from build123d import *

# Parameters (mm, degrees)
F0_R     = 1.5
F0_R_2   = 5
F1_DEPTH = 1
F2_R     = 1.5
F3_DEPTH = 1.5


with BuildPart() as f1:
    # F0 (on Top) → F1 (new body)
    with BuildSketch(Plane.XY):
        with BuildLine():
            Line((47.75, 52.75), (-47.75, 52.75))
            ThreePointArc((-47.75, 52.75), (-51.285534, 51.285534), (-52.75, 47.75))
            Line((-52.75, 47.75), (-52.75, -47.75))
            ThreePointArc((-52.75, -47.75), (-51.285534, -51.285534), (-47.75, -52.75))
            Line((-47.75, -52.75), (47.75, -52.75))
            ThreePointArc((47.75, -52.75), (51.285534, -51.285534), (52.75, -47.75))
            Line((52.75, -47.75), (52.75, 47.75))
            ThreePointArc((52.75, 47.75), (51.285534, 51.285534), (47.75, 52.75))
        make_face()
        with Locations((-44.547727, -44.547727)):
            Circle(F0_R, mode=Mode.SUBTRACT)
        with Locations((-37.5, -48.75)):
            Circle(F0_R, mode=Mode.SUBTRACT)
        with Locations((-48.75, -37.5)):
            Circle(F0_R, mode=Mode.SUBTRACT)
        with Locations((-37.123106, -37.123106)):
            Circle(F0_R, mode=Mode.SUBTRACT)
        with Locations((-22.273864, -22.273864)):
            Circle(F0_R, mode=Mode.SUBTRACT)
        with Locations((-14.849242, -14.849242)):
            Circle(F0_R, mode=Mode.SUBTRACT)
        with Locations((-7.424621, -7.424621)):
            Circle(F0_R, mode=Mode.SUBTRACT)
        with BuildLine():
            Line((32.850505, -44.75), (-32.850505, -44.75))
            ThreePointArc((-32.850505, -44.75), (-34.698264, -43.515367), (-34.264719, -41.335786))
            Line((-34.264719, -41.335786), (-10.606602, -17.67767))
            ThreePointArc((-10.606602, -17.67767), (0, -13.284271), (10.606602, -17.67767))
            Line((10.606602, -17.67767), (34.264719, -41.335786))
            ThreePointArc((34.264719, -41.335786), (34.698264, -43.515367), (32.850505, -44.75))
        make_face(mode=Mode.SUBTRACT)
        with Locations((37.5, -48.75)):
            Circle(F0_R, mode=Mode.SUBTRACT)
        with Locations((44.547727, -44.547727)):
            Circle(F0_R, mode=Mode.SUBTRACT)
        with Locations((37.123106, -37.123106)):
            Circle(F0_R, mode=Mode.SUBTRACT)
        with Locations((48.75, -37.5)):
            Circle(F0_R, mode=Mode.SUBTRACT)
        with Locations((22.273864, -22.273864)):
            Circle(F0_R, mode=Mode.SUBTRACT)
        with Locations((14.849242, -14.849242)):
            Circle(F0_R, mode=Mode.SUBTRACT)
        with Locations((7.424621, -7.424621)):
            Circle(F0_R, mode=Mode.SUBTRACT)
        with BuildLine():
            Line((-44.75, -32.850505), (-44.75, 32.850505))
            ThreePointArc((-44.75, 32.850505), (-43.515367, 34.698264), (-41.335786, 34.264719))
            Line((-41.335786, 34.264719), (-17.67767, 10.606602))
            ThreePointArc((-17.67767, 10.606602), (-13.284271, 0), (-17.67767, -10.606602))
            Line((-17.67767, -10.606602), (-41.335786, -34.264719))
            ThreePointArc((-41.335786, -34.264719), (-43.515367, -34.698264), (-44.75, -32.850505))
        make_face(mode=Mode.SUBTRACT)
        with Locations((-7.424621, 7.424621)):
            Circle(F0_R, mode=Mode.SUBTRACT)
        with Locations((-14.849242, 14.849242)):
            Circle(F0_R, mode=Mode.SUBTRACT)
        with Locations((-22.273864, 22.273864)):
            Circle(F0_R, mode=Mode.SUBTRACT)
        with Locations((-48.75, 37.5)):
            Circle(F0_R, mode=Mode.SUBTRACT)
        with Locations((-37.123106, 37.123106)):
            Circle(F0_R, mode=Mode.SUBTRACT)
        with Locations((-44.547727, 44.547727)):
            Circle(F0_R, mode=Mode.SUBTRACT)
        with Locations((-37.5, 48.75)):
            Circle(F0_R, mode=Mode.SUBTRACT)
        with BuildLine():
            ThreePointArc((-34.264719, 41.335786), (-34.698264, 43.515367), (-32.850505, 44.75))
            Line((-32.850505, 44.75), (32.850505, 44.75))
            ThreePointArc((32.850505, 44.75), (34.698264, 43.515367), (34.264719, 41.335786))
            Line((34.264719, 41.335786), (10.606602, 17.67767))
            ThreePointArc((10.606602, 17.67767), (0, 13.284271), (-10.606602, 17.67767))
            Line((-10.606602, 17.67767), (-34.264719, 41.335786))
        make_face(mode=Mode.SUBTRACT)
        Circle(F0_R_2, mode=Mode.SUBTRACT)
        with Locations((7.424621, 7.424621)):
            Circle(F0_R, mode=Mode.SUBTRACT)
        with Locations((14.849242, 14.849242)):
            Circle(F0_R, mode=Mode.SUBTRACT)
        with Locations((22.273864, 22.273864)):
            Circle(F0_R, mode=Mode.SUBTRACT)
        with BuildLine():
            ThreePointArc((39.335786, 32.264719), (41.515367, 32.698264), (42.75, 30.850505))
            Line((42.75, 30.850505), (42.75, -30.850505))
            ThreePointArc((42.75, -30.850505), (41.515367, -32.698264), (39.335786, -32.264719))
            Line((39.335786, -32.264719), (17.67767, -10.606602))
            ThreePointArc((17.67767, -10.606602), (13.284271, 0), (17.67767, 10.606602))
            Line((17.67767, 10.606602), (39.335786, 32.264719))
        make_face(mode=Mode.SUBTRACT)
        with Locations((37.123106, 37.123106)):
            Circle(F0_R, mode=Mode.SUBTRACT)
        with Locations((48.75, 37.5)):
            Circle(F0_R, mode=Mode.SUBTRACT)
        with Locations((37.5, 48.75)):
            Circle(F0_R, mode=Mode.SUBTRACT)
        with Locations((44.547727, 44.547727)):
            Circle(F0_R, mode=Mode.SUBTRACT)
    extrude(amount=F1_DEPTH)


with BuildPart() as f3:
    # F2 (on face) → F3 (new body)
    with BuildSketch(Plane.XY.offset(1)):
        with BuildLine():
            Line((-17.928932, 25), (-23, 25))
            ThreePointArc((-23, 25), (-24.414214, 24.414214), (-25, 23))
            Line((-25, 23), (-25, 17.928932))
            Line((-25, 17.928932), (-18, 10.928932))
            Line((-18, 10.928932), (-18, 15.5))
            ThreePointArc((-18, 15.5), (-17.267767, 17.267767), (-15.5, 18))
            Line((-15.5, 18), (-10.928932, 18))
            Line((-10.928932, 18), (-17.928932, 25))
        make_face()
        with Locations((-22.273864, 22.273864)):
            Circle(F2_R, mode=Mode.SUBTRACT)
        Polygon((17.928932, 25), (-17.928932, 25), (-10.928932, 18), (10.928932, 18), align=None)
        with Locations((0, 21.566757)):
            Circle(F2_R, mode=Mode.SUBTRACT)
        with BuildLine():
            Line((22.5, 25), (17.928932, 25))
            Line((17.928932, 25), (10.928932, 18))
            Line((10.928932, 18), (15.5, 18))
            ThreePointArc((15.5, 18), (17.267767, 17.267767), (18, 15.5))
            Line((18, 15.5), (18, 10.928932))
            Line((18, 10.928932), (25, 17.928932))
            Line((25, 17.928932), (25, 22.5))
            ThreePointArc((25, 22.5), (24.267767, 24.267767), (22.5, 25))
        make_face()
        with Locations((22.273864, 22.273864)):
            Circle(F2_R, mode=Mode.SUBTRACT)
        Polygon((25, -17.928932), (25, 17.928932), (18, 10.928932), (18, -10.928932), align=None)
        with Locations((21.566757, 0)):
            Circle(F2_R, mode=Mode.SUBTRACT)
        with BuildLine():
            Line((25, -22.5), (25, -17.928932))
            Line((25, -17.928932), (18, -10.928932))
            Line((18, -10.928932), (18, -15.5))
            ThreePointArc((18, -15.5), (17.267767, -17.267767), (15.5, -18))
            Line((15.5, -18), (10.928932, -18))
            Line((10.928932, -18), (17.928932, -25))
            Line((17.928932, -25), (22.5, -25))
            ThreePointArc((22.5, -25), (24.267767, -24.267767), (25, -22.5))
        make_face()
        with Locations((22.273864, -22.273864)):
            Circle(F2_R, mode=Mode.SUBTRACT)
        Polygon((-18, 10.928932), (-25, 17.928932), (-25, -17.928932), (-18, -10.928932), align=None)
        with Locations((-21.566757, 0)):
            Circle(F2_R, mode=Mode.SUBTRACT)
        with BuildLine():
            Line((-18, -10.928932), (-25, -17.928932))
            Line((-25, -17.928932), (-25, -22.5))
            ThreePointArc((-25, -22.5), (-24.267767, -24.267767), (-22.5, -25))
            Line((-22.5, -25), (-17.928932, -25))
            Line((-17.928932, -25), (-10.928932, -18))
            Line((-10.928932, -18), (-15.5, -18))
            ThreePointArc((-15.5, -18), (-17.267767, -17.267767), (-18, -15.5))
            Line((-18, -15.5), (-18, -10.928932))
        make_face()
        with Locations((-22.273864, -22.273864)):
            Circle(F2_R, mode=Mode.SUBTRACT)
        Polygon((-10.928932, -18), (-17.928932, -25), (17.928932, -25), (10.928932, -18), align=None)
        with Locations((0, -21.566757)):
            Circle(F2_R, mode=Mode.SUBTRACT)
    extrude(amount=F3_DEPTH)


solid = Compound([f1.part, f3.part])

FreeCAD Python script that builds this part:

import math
import FreeCAD as App
import Part
import Sketcher

V = App.Vector

doc = App.newDocument("Part")
body = doc.addObject("PartDesign::Body", "Body")

sketch1 = body.newObject("Sketcher::SketchObject", "Sketch")
sketch1.AttachmentSupport = (doc.getObject("XY_Plane"), [""])
sketch1.MapMode = "FlatFace"
sketch1.addGeometry(Part.LineSegment(V(47.8, 52.8, 0), V(-47.8, 52.8, 0)), False)
sketch1.addGeometry(Part.ArcOfCircle(Part.Circle(V(-47.8, 47.8, 0), V(0, 0, 1), 5), math.radians(90), math.radians(180)), False)
sketch1.addGeometry(Part.LineSegment(V(-52.8, 47.8, 0), V(-52.8, -47.8, 0)), False)
sketch1.addGeometry(Part.ArcOfCircle(Part.Circle(V(-47.8, -47.8, 0), V(0, 0, 1), 5), math.radians(180), math.radians(270)), False)
sketch1.addGeometry(Part.LineSegment(V(-47.8, -52.8, 0), V(47.8, -52.8, 0)), False)
sketch1.addGeometry(Part.ArcOfCircle(Part.Circle(V(47.8, -47.8, 0), V(0, 0, 1), 5), math.radians(-90), math.radians(0)), False)
sketch1.addGeometry(Part.LineSegment(V(52.8, -47.8, 0), V(52.8, 47.8, 0)), False)
sketch1.addGeometry(Part.ArcOfCircle(Part.Circle(V(47.8, 47.8, 0), V(0, 0, 1), 5), math.radians(0), math.radians(90)), False)
sketch1.addGeometry(Part.Circle(V(-44.5, -44.5, 0), V(0, 0, 1), 1.5), False)
sketch1.addGeometry(Part.Circle(V(-37.5, -48.8, 0), V(0, 0, 1), 1.5), False)
sketch1.addGeometry(Part.Circle(V(-48.8, -37.5, 0), V(0, 0, 1), 1.5), False)
sketch1.addGeometry(Part.Circle(V(-37.1, -37.1, 0), V(0, 0, 1), 1.5), False)
sketch1.addGeometry(Part.Circle(V(-22.3, -22.3, 0), V(0, 0, 1), 1.5), False)
sketch1.addGeometry(Part.Circle(V(-14.8, -14.8, 0), V(0, 0, 1), 1.5), False)
sketch1.addGeometry(Part.Circle(V(-7.4, -7.4, 0), V(0, 0, 1), 1.5), False)
sketch1.addGeometry(Part.ArcOfCircle(Part.Circle(V(32.9, -42.7, 0), V(0, 0, 1), 2), math.radians(-90), math.radians(45)), False)
sketch1.addGeometry(Part.LineSegment(V(32.9, -44.8, 0), V(-32.9, -44.8, 0)), False)
sketch1.addGeometry(Part.ArcOfCircle(Part.Circle(V(-32.9, -42.7, 0), V(0, 0, 1), 2), math.radians(135), math.radians(270)), False)
sketch1.addGeometry(Part.LineSegment(V(-34.3, -41.3, 0), V(-10.6, -17.7, 0)), False)
sketch1.addGeometry(Part.ArcOfCircle(Part.Circle(V(0, -28.3, 0), V(0, 0, 1), 15), math.radians(45), math.radians(135)), False)
sketch1.addGeometry(Part.LineSegment(V(10.6, -17.7, 0), V(34.3, -41.3, 0)), False)
sketch1.addGeometry(Part.Circle(V(37.5, -48.8, 0), V(0, 0, 1), 1.5), False)
sketch1.addGeometry(Part.Circle(V(44.5, -44.5, 0), V(0, 0, 1), 1.5), False)
sketch1.addGeometry(Part.Circle(V(37.1, -37.1, 0), V(0, 0, 1), 1.5), False)
sketch1.addGeometry(Part.Circle(V(48.8, -37.5, 0), V(0, 0, 1), 1.5), False)
sketch1.addGeometry(Part.Circle(V(22.3, -22.3, 0), V(0, 0, 1), 1.5), False)
sketch1.addGeometry(Part.Circle(V(14.8, -14.8, 0), V(0, 0, 1), 1.5), False)
sketch1.addGeometry(Part.Circle(V(7.4, -7.4, 0), V(0, 0, 1), 1.5), False)
sketch1.addGeometry(Part.ArcOfCircle(Part.Circle(V(-42.7, -32.9, 0), V(0, 0, 1), 2), math.radians(-180), math.radians(-45)), False)
sketch1.addGeometry(Part.LineSegment(V(-44.8, -32.9, 0), V(-44.8, 32.9, 0)), False)
sketch1.addGeometry(Part.ArcOfCircle(Part.Circle(V(-42.7, 32.9, 0), V(0, 0, 1), 2), math.radians(45), math.radians(180)), False)
sketch1.addGeometry(Part.LineSegment(V(-41.3, 34.3, 0), V(-17.7, 10.6, 0)), False)
sketch1.addGeometry(Part.ArcOfCircle(Part.Circle(V(-28.3, 0, 0), V(0, 0, 1), 15), math.radians(-45), math.radians(45)), False)
sketch1.addGeometry(Part.LineSegment(V(-17.7, -10.6, 0), V(-41.3, -34.3, 0)), False)
sketch1.addGeometry(Part.Circle(V(-7.4, 7.4, 0), V(0, 0, 1), 1.5), False)
sketch1.addGeometry(Part.Circle(V(-14.8, 14.8, 0), V(0, 0, 1), 1.5), False)
sketch1.addGeometry(Part.Circle(V(-22.3, 22.3, 0), V(0, 0, 1), 1.5), False)
sketch1.addGeometry(Part.Circle(V(-48.8, 37.5, 0), V(0, 0, 1), 1.5), False)
sketch1.addGeometry(Part.Circle(V(-37.1, 37.1, 0), V(0, 0, 1), 1.5), False)
sketch1.addGeometry(Part.Circle(V(-44.5, 44.5, 0), V(0, 0, 1), 1.5), False)
sketch1.addGeometry(Part.Circle(V(-37.5, 48.8, 0), V(0, 0, 1), 1.5), False)
sketch1.addGeometry(Part.Circle(V(0, 0, 0), V(0, 0, 1), 5), False)
sketch1.addGeometry(Part.Circle(V(7.4, 7.4, 0), V(0, 0, 1), 1.5), False)
sketch1.addGeometry(Part.Circle(V(14.8, 14.8, 0), V(0, 0, 1), 1.5), False)
sketch1.addGeometry(Part.Circle(V(22.3, 22.3, 0), V(0, 0, 1), 1.5), False)
sketch1.addGeometry(Part.LineSegment(V(17.7, 10.6, 0), V(39.3, 32.3, 0)), False)
sketch1.addGeometry(Part.ArcOfCircle(Part.Circle(V(40.7, 30.9, 0), V(0, 0, 1), 2), math.radians(0), math.radians(135)), False)
sketch1.addGeometry(Part.LineSegment(V(42.8, 30.9, 0), V(42.8, -30.9, 0)), False)
sketch1.addGeometry(Part.ArcOfCircle(Part.Circle(V(40.7, -30.9, 0), V(0, 0, 1), 2), math.radians(-135), math.radians(0)), False)
sketch1.addGeometry(Part.LineSegment(V(39.3, -32.3, 0), V(17.7, -10.6, 0)), False)
sketch1.addGeometry(Part.ArcOfCircle(Part.Circle(V(28.3, 0, 0), V(0, 0, 1), 15), math.radians(135), math.radians(225)), False)
sketch1.addGeometry(Part.LineSegment(V(-10.6, 17.7, 0), V(-34.3, 41.3, 0)), False)
sketch1.addGeometry(Part.ArcOfCircle(Part.Circle(V(-32.9, 42.7, 0), V(0, 0, 1), 2), math.radians(90), math.radians(225)), False)
sketch1.addGeometry(Part.LineSegment(V(-32.9, 44.8, 0), V(32.9, 44.8, 0)), False)
sketch1.addGeometry(Part.ArcOfCircle(Part.Circle(V(32.9, 42.7, 0), V(0, 0, 1), 2), math.radians(-45), math.radians(90)), False)
sketch1.addGeometry(Part.LineSegment(V(34.3, 41.3, 0), V(10.6, 17.7, 0)), False)
sketch1.addGeometry(Part.ArcOfCircle(Part.Circle(V(0, 28.3, 0), V(0, 0, 1), 15), math.radians(-135), math.radians(-45)), False)
sketch1.addGeometry(Part.Circle(V(37.1, 37.1, 0), V(0, 0, 1), 1.5), False)
sketch1.addGeometry(Part.Circle(V(48.8, 37.5, 0), V(0, 0, 1), 1.5), False)
sketch1.addGeometry(Part.Circle(V(37.5, 48.8, 0), V(0, 0, 1), 1.5), False)
sketch1.addGeometry(Part.Circle(V(44.5, 44.5, 0), V(0, 0, 1), 1.5), False)
sketch1.addConstraint(Sketcher.Constraint("Tangent", 0, 2, 1, 1))
sketch1.addConstraint(Sketcher.Constraint("Tangent", 1, 2, 2, 1))
sketch1.addConstraint(Sketcher.Constraint("Tangent", 2, 2, 3, 1))
sketch1.addConstraint(Sketcher.Constraint("Tangent", 3, 2, 4, 1))
sketch1.addConstraint(Sketcher.Constraint("Tangent", 4, 2, 5, 1))
sketch1.addConstraint(Sketcher.Constraint("Tangent", 5, 2, 6, 1))
sketch1.addConstraint(Sketcher.Constraint("Tangent", 6, 2, 7, 1))
sketch1.addConstraint(Sketcher.Constraint("Tangent", 7, 2, 0, 1))
sketch1.addConstraint(Sketcher.Constraint("Tangent", 15, 1, 16, 1))
sketch1.addConstraint(Sketcher.Constraint("Tangent", 16, 2, 17, 2))
sketch1.addConstraint(Sketcher.Constraint("Tangent", 17, 1, 18, 1))
sketch1.addConstraint(Sketcher.Constraint("Tangent", 18, 2, 19, 2))
sketch1.addConstraint(Sketcher.Constraint("Tangent", 19, 1, 20, 1))
sketch1.addConstraint(Sketcher.Constraint("Tangent", 20, 2, 15, 2))
sketch1.addConstraint(Sketcher.Constraint("Tangent", 28, 1, 29, 1))
sketch1.addConstraint(Sketcher.Constraint("Tangent", 29, 2, 30, 2))
sketch1.addConstraint(Sketcher.Constraint("Tangent", 30, 1, 31, 1))
sketch1.addConstraint(Sketcher.Constraint("Tangent", 31, 2, 32, 2))
sketch1.addConstraint(Sketcher.Constraint("Tangent", 32, 1, 33, 1))
sketch1.addConstraint(Sketcher.Constraint("Tangent", 33, 2, 28, 2))
sketch1.addConstraint(Sketcher.Constraint("Tangent", 45, 2, 46, 2))
sketch1.addConstraint(Sketcher.Constraint("Tangent", 46, 1, 47, 1))
sketch1.addConstraint(Sketcher.Constraint("Tangent", 47, 2, 48, 2))
sketch1.addConstraint(Sketcher.Constraint("Tangent", 48, 1, 49, 1))
sketch1.addConstraint(Sketcher.Constraint("Tangent", 49, 2, 50, 2))
sketch1.addConstraint(Sketcher.Constraint("Tangent", 50, 1, 45, 1))
sketch1.addConstraint(Sketcher.Constraint("Tangent", 51, 2, 52, 2))
sketch1.addConstraint(Sketcher.Constraint("Tangent", 52, 1, 53, 1))
sketch1.addConstraint(Sketcher.Constraint("Tangent", 53, 2, 54, 2))
sketch1.addConstraint(Sketcher.Constraint("Tangent", 54, 1, 55, 1))
sketch1.addConstraint(Sketcher.Constraint("Tangent", 55, 2, 56, 2))
sketch1.addConstraint(Sketcher.Constraint("Tangent", 56, 1, 51, 1))
sketch1.addConstraint(Sketcher.Constraint("Horizontal", 0))
sketch1.addConstraint(Sketcher.Constraint("Vertical", 2))
sketch1.addConstraint(Sketcher.Constraint("Horizontal", 4))
sketch1.addConstraint(Sketcher.Constraint("Vertical", 6))
sketch1.addConstraint(Sketcher.Constraint("Horizontal", 16))
sketch1.addConstraint(Sketcher.Constraint("Vertical", 29))
sketch1.addConstraint(Sketcher.Constraint("Vertical", 47))
sketch1.addConstraint(Sketcher.Constraint("Horizontal", 53))
sketch1.addConstraint(Sketcher.Constraint("Coincident", 41, 3, -1, 1))
sketch1.addConstraint(Sketcher.Constraint("Equal", 1, 3))
sketch1.addConstraint(Sketcher.Constraint("Equal", 3, 5))
sketch1.addConstraint(Sketcher.Constraint("Equal", 5, 7))
sketch1.addConstraint(Sketcher.Constraint("Equal", 8, 9))
sketch1.addConstraint(Sketcher.Constraint("Equal", 9, 10))
sketch1.addConstraint(Sketcher.Constraint("Equal", 10, 11))
sketch1.addConstraint(Sketcher.Constraint("Equal", 11, 12))
sketch1.addConstraint(Sketcher.Constraint("Equal", 12, 13))
sketch1.addConstraint(Sketcher.Constraint("Equal", 13, 14))
sketch1.addConstraint(Sketcher.Constraint("Equal", 15, 17))
sketch1.addConstraint(Sketcher.Constraint("Equal", 14, 21))
sketch1.addConstraint(Sketcher.Constraint("Equal", 21, 22))
sketch1.addConstraint(Sketcher.Constraint("Equal", 22, 23))
sketch1.addConstraint(Sketcher.Constraint("Equal", 23, 24))
sketch1.addConstraint(Sketcher.Constraint("Equal", 24, 25))
sketch1.addConstraint(Sketcher.Constraint("Equal", 25, 26))
sketch1.addConstraint(Sketcher.Constraint("Equal", 26, 27))
sketch1.addConstraint(Sketcher.Constraint("Equal", 17, 28))
sketch1.addConstraint(Sketcher.Constraint("Equal", 28, 30))
sketch1.addConstraint(Sketcher.Constraint("Equal", 19, 32))
sketch1.addConstraint(Sketcher.Constraint("Equal", 27, 34))
sketch1.addConstraint(Sketcher.Constraint("Equal", 34, 35))
sketch1.addConstraint(Sketcher.Constraint("Equal", 35, 36))
sketch1.addConstraint(Sketcher.Constraint("Equal", 36, 37))
sketch1.addConstraint(Sketcher.Constraint("Equal", 37, 38))
sketch1.addConstraint(Sketcher.Constraint("Equal", 38, 39))
sketch1.addConstraint(Sketcher.Constraint("Equal", 39, 40))
sketch1.addConstraint(Sketcher.Constraint("Equal", 7, 41))
sketch1.addConstraint(Sketcher.Constraint("Equal", 40, 42))
sketch1.addConstraint(Sketcher.Constraint("Equal", 42, 43))
sketch1.addConstraint(Sketcher.Constraint("Equal", 43, 44))
sketch1.addConstraint(Sketcher.Constraint("Equal", 30, 46))
sketch1.addConstraint(Sketcher.Constraint("Equal", 46, 48))
sketch1.addConstraint(Sketcher.Constraint("Equal", 32, 50))
sketch1.addConstraint(Sketcher.Constraint("Equal", 48, 52))
sketch1.addConstraint(Sketcher.Constraint("Equal", 52, 54))
sketch1.addConstraint(Sketcher.Constraint("Equal", 50, 56))
sketch1.addConstraint(Sketcher.Constraint("Equal", 44, 57))
sketch1.addConstraint(Sketcher.Constraint("Equal", 57, 58))
sketch1.addConstraint(Sketcher.Constraint("Equal", 58, 59))
sketch1.addConstraint(Sketcher.Constraint("Equal", 59, 60))
sketch1.addConstraint(Sketcher.Constraint("Symmetric", 1, 3, 5, 3, -1, 1))
sketch1.addConstraint(Sketcher.Constraint("Symmetric", 27, 3, 34, 3, -1, 1))
sketch1.addConstraint(Sketcher.Constraint("Symmetric", 26, 3, 35, 3, -1, 1))
sketch1.addConstraint(Sketcher.Constraint("Symmetric", 25, 3, 36, 3, -1, 1))
sketch1.addConstraint(Sketcher.Constraint("Symmetric", 24, 3, 37, 3, -1, 1))
sketch1.addConstraint(Sketcher.Constraint("Symmetric", 23, 3, 38, 3, -1, 1))
sketch1.addConstraint(Sketcher.Constraint("Symmetric", 22, 3, 39, 3, -1, 1))
sketch1.addConstraint(Sketcher.Constraint("Symmetric", 21, 3, 40, 3, -1, 1))
sketch1.addConstraint(Sketcher.Constraint("Symmetric", 14, 3, 42, 3, -1, 1))
sketch1.addConstraint(Sketcher.Constraint("Symmetric", 13, 3, 43, 3, -1, 1))
sketch1.addConstraint(Sketcher.Constraint("Symmetric", 12, 3, 44, 3, -1, 1))
sketch1.addConstraint(Sketcher.Constraint("Symmetric", 32, 3, 50, 3, -1, 1))
sketch1.addConstraint(Sketcher.Constraint("Symmetric", 15, 3, 52, 3, -1, 1))
sketch1.addConstraint(Sketcher.Constraint("Symmetric", 19, 3, 56, 3, -1, 1))
sketch1.addConstraint(Sketcher.Constraint("Symmetric", 11, 3, 57, 3, -1, 1))
sketch1.addConstraint(Sketcher.Constraint("Symmetric", 10, 3, 58, 3, -1, 1))
sketch1.addConstraint(Sketcher.Constraint("Symmetric", 9, 3, 59, 3, -1, 1))
sketch1.addConstraint(Sketcher.Constraint("Symmetric", 8, 3, 60, 3, -1, 1))
sketch1.addConstraint(Sketcher.Constraint("Symmetric", 9, 3, 21, 3, -2))
sketch1.addConstraint(Sketcher.Constraint("Symmetric", 8, 3, 22, 3, -2))
sketch1.addConstraint(Sketcher.Constraint("Symmetric", 11, 3, 23, 3, -2))
sketch1.addConstraint(Sketcher.Constraint("Symmetric", 10, 3, 24, 3, -2))
sketch1.addConstraint(Sketcher.Constraint("Symmetric", 12, 3, 25, 3, -2))
sketch1.addConstraint(Sketcher.Constraint("Symmetric", 13, 3, 26, 3, -2))
sketch1.addConstraint(Sketcher.Constraint("Symmetric", 14, 3, 27, 3, -2))
sketch1.addConstraint(Sketcher.Constraint("Symmetric", 18, 2, 19, 1, -2))
sketch1.addConstraint(Sketcher.Constraint("Symmetric", 32, 1, 49, 2, -2))
sketch1.addConstraint(Sketcher.Constraint("Perpendicular", 18, 20))
sketch1.addConstraint(Sketcher.Constraint("Parallel", 20, 31))
sketch1.addConstraint(Sketcher.Constraint("Perpendicular", 31, 33))
sketch1.addConstraint(Sketcher.Constraint("Parallel", 33, 45))
sketch1.addConstraint(Sketcher.Constraint("Perpendicular", 51, 55))
sketch1.addConstraint(Sketcher.Constraint("Equal", 4, 2))
sketch1.addConstraint(Sketcher.Constraint("Equal", 53, 29))
sketch1.addConstraint(Sketcher.Constraint("Diameter", 8, 3.0))
sketch1.addConstraint(Sketcher.Constraint("Diameter", 41, 10.0))
sketch1.addConstraint(Sketcher.Constraint("Radius", 15, 2.000001))
sketch1.addConstraint(Sketcher.Constraint("Radius", 19, 14.999999))
sketch1.addConstraint(Sketcher.Constraint("DistanceX", 0, 2, 0, 1, 95.5))
sketch1.addConstraint(Sketcher.Constraint("DistanceX", 9, 3, -1, 1, 37.5))
sketch1.addConstraint(Sketcher.Constraint("DistanceY", 10, 3, -1, 1, 37.5))
sketch1.addConstraint(Sketcher.Constraint("DistanceY", 9, 3, -1, 1, 48.75))
sketch1.addConstraint(Sketcher.Constraint("DistanceX", 10, 3, -1, 1, 48.75))
sketch1.addConstraint(Sketcher.Constraint("DistanceY", 15, 3, -1, 1, 42.749999))
sketch1.addConstraint(Sketcher.Constraint("DistanceX", 28, 3, -1, 1, 42.749999))
sketch1.addConstraint(Sketcher.Constraint("DistanceX", -1, 1, 46, 3, 40.749999))
sketch1.addConstraint(Sketcher.Constraint("DistanceX", 16, 2, 16, 1, 65.70101))
sketch1.addConstraint(Sketcher.Constraint("DistanceX", 14, 3, -1, 1, 7.424621))
sketch1.addConstraint(Sketcher.Constraint("DistanceY", 14, 3, -1, 1, 7.424621))
sketch1.addConstraint(Sketcher.Constraint("DistanceX", 8, 3, -1, 1, 44.547727))
sketch1.addConstraint(Sketcher.Constraint("DistanceY", 8, 3, -1, 1, 44.547727))
sketch1.addConstraint(Sketcher.Constraint("DistanceX", 11, 3, -1, 1, 37.123106))
sketch1.addConstraint(Sketcher.Constraint("DistanceY", 11, 3, -1, 1, 37.123106))
sketch1.addConstraint(Sketcher.Constraint("DistanceX", 12, 3, -1, 1, 22.273864))
sketch1.addConstraint(Sketcher.Constraint("DistanceY", 12, 3, -1, 1, 22.273864))
sketch1.addConstraint(Sketcher.Constraint("DistanceX", 13, 3, -1, 1, 14.849242))
sketch1.addConstraint(Sketcher.Constraint("DistanceY", 13, 3, -1, 1, 14.849242))
pad1 = body.newObject("PartDesign::Pad", "Pad")
pad1.Profile = sketch1
pad1.Length = 1
body2 = doc.addObject("PartDesign::Body", "Body001")

sketch2 = body2.newObject("Sketcher::SketchObject", "Sketch001")
sketch2.AttachmentSupport = (doc.getObject("XY_Plane001"), [""])
sketch2.MapMode = "FlatFace"
sketch2.AttachmentOffset = App.Placement(V(0, 0, 1), App.Rotation())
sketch2.addGeometry(Part.ArcOfCircle(Part.Circle(V(-23, 23, 0), V(0, 0, 1), 2), math.radians(90), math.radians(180)), False)
sketch2.addGeometry(Part.LineSegment(V(-25, 23, 0), V(-25, -22.5, 0)), False)
sketch2.addGeometry(Part.ArcOfCircle(Part.Circle(V(-22.5, -22.5, 0), V(0, 0, 1), 2.5), math.radians(180), math.radians(270)), False)
sketch2.addGeometry(Part.LineSegment(V(-22.5, -25, 0), V(22.5, -25, 0)), False)
sketch2.addGeometry(Part.ArcOfCircle(Part.Circle(V(22.5, -22.5, 0), V(0, 0, 1), 2.5), math.radians(-90), math.radians(0)), False)
sketch2.addGeometry(Part.LineSegment(V(25, -22.5, 0), V(25, 22.5, 0)), False)
sketch2.addGeometry(Part.ArcOfCircle(Part.Circle(V(22.5, 22.5, 0), V(0, 0, 1), 2.5), math.radians(0), math.radians(90)), False)
sketch2.addGeometry(Part.LineSegment(V(22.5, 25, 0), V(-23, 25, 0)), False)
sketch2.addGeometry(Part.Circle(V(-22.3, -22.3, 0), V(0, 0, 1), 1.5), False)
sketch2.addGeometry(Part.Circle(V(0, -21.6, 0), V(0, 0, 1), 1.5), False)
sketch2.addGeometry(Part.Circle(V(22.3, -22.3, 0), V(0, 0, 1), 1.5), False)
sketch2.addGeometry(Part.Circle(V(-21.6, 0, 0), V(0, 0, 1), 1.5), False)
sketch2.addGeometry(Part.ArcOfCircle(Part.Circle(V(-15.5, -15.5, 0), V(0, 0, 1), 2.5), math.radians(180), math.radians(270)), False)
sketch2.addGeometry(Part.LineSegment(V(-18, -15.5, 0), V(-18, 15.5, 0)), False)
sketch2.addGeometry(Part.ArcOfCircle(Part.Circle(V(-15.5, 15.5, 0), V(0, 0, 1), 2.5), math.radians(90), math.radians(180)), False)
sketch2.addGeometry(Part.LineSegment(V(-15.5, 18, 0), V(15.5, 18, 0)), False)
sketch2.addGeometry(Part.ArcOfCircle(Part.Circle(V(15.5, 15.5, 0), V(0, 0, 1), 2.5), math.radians(0), math.radians(90)), False)
sketch2.addGeometry(Part.LineSegment(V(18, 15.5, 0), V(18, -15.5, 0)), False)
sketch2.addGeometry(Part.ArcOfCircle(Part.Circle(V(15.5, -15.5, 0), V(0, 0, 1), 2.5), math.radians(-90), math.radians(0)), False)
sketch2.addGeometry(Part.LineSegment(V(15.5, -18, 0), V(-15.5, -18, 0)), False)
sketch2.addGeometry(Part.Circle(V(-22.3, 22.3, 0), V(0, 0, 1), 1.5), False)
sketch2.addGeometry(Part.Circle(V(0, 21.6, 0), V(0, 0, 1), 1.5), False)
sketch2.addGeometry(Part.Circle(V(21.6, 0, 0), V(0, 0, 1), 1.5), False)
sketch2.addGeometry(Part.Circle(V(22.3, 22.3, 0), V(0, 0, 1), 1.5), False)
sketch2.addConstraint(Sketcher.Constraint("Tangent", 0, 2, 1, 1))
sketch2.addConstraint(Sketcher.Constraint("Tangent", 1, 2, 2, 1))
sketch2.addConstraint(Sketcher.Constraint("Tangent", 2, 2, 3, 1))
sketch2.addConstraint(Sketcher.Constraint("Tangent", 3, 2, 4, 1))
sketch2.addConstraint(Sketcher.Constraint("Tangent", 4, 2, 5, 1))
sketch2.addConstraint(Sketcher.Constraint("Tangent", 5, 2, 6, 1))
sketch2.addConstraint(Sketcher.Constraint("Tangent", 6, 2, 7, 1))
sketch2.addConstraint(Sketcher.Constraint("Tangent", 7, 2, 0, 1))
sketch2.addConstraint(Sketcher.Constraint("Tangent", 12, 1, 13, 1))
sketch2.addConstraint(Sketcher.Constraint("Tangent", 13, 2, 14, 2))
sketch2.addConstraint(Sketcher.Constraint("Tangent", 14, 1, 15, 1))
sketch2.addConstraint(Sketcher.Constraint("Tangent", 15, 2, 16, 2))
sketch2.addConstraint(Sketcher.Constraint("Tangent", 16, 1, 17, 1))
sketch2.addConstraint(Sketcher.Constraint("Tangent", 17, 2, 18, 2))
sketch2.addConstraint(Sketcher.Constraint("Tangent", 18, 1, 19, 1))
sketch2.addConstraint(Sketcher.Constraint("Tangent", 19, 2, 12, 2))
sketch2.addConstraint(Sketcher.Constraint("Vertical", 1))
sketch2.addConstraint(Sketcher.Constraint("Horizontal", 3))
sketch2.addConstraint(Sketcher.Constraint("Vertical", 5))
sketch2.addConstraint(Sketcher.Constraint("Horizontal", 7))
sketch2.addConstraint(Sketcher.Constraint("Vertical", 13))
sketch2.addConstraint(Sketcher.Constraint("Horizontal", 15))
sketch2.addConstraint(Sketcher.Constraint("Vertical", 17))
sketch2.addConstraint(Sketcher.Constraint("Horizontal", 19))
sketch2.addConstraint(Sketcher.Constraint("Equal", 2, 4))
sketch2.addConstraint(Sketcher.Constraint("Equal", 4, 6))
sketch2.addConstraint(Sketcher.Constraint("Equal", 8, 9))
sketch2.addConstraint(Sketcher.Constraint("Equal", 9, 10))
sketch2.addConstraint(Sketcher.Constraint("Equal", 10, 11))
sketch2.addConstraint(Sketcher.Constraint("Equal", 6, 12))
sketch2.addConstraint(Sketcher.Constraint("Equal", 12, 14))
sketch2.addConstraint(Sketcher.Constraint("Equal", 14, 16))
sketch2.addConstraint(Sketcher.Constraint("Equal", 16, 18))
sketch2.addConstraint(Sketcher.Constraint("Equal", 11, 20))
sketch2.addConstraint(Sketcher.Constraint("Equal", 20, 21))
sketch2.addConstraint(Sketcher.Constraint("Equal", 21, 22))
sketch2.addConstraint(Sketcher.Constraint("Equal", 22, 23))
sketch2.addConstraint(Sketcher.Constraint("Symmetric", 2, 3, 6, 3, -1, 1))
sketch2.addConstraint(Sketcher.Constraint("Symmetric", 12, 3, 16, 3, -1, 1))
sketch2.addConstraint(Sketcher.Constraint("Symmetric", 10, 3, 20, 3, -1, 1))
sketch2.addConstraint(Sketcher.Constraint("Symmetric", 9, 3, 21, 3, -1, 1))
sketch2.addConstraint(Sketcher.Constraint("Symmetric", 11, 3, 22, 3, -1, 1))
sketch2.addConstraint(Sketcher.Constraint("Symmetric", 8, 3, 23, 3, -1, 1))
sketch2.addConstraint(Sketcher.Constraint("Symmetric", 8, 3, 10, 3, -2))
sketch2.addConstraint(Sketcher.Constraint("PointOnObject", 9, 3, -2))
sketch2.addConstraint(Sketcher.Constraint("PointOnObject", 11, 3, -1))
sketch2.addConstraint(Sketcher.Constraint("Equal", 7, 1))
sketch2.addConstraint(Sketcher.Constraint("Equal", 19, 13))
sketch2.addConstraint(Sketcher.Constraint("Diameter", 8, 3.0))
sketch2.addConstraint(Sketcher.Constraint("Radius", 0, 1.999999))
sketch2.addConstraint(Sketcher.Constraint("Radius", 2, 2.5))
sketch2.addConstraint(Sketcher.Constraint("DistanceX", 3, 1, 3, 2, 45.0))
sketch2.addConstraint(Sketcher.Constraint("DistanceX", 15, 1, 15, 2, 31.0))
sketch2.addConstraint(Sketcher.Constraint("DistanceY", 9, 3, 0, 3, 44.566758))
sketch2.addConstraint(Sketcher.Constraint("DistanceX", 11, 3, 10, 3, 43.840621))
sketch2.addConstraint(Sketcher.Constraint("DistanceX", 8, 3, -1, 1, 22.273864))
sketch2.addConstraint(Sketcher.Constraint("DistanceY", 8, 3, -1, 1, 22.273864))
pad2 = body2.newObject("PartDesign::Pad", "Pad001")
pad2.Profile = sketch2
pad2.Length = 1.5

doc.recompute()
